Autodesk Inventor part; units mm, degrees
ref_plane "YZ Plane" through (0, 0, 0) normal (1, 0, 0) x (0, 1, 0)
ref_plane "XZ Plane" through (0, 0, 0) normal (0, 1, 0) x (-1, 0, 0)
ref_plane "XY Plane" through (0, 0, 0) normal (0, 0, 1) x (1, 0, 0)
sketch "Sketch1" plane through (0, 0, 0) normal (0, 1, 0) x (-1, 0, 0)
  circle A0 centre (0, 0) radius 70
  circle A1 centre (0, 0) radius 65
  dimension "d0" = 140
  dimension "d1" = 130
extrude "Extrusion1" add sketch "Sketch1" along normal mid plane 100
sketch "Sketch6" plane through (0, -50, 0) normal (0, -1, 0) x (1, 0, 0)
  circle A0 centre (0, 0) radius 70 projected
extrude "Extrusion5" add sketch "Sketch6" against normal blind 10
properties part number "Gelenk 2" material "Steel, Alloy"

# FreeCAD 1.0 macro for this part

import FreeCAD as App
import Part
import Sketcher

doc = App.newDocument("Part")
body = doc.addObject("PartDesign::Body", "Body")

sketch1 = doc.addObject("Sketcher::SketchObject", "Sketch")
body.addObject(sketch1)
sketch1.AttachmentSupport = (doc.XZ_Plane, [""])
sketch1.MapMode = "FlatFace"
sketch1.addGeometry([
    Part.Circle(App.Vector(0, 0, 0), App.Vector(0, 0, 1), 70),
    Part.Circle(App.Vector(0, 0, 0), App.Vector(0, 0, 1), 65),
], False)
sketch1.addConstraint([
    Sketcher.Constraint("Coincident", 0, 3, -1, 1),
    Sketcher.Constraint("Coincident", 1, 3, -1, 1),
    Sketcher.Constraint("Diameter", 0, 140.0),
    Sketcher.Constraint("Diameter", 1, 130.0),
])
pad1 = doc.addObject("PartDesign::Pad", "Pad")
body.addObject(pad1)
pad1.Profile = sketch1
pad1.Length = 100
pad1.Midplane = True

sketch2 = doc.addObject("Sketcher::SketchObject", "Sketch001")
body.addObject(sketch2)
sketch2.AttachmentSupport = (doc.XZ_Plane, [""])
sketch2.MapMode = "FlatFace"
sketch2.AttachmentOffset = App.Placement(App.Vector(0, 0, 50), App.Rotation())
sketch2.addGeometry(Part.Circle(App.Vector(0, 0, 0), App.Vector(0, 0, 1), 70), False)
sketch2.addConstraint([
    Sketcher.Constraint("Coincident", 0, 3, -1, 1),
    Sketcher.Constraint("Diameter", 0, 140.0),
])
pad2 = doc.addObject("PartDesign::Pad", "Pad001")
body.addObject(pad2)
pad2.Profile = sketch2
pad2.Length = 10
pad2.Reversed = True

doc.recompute()
